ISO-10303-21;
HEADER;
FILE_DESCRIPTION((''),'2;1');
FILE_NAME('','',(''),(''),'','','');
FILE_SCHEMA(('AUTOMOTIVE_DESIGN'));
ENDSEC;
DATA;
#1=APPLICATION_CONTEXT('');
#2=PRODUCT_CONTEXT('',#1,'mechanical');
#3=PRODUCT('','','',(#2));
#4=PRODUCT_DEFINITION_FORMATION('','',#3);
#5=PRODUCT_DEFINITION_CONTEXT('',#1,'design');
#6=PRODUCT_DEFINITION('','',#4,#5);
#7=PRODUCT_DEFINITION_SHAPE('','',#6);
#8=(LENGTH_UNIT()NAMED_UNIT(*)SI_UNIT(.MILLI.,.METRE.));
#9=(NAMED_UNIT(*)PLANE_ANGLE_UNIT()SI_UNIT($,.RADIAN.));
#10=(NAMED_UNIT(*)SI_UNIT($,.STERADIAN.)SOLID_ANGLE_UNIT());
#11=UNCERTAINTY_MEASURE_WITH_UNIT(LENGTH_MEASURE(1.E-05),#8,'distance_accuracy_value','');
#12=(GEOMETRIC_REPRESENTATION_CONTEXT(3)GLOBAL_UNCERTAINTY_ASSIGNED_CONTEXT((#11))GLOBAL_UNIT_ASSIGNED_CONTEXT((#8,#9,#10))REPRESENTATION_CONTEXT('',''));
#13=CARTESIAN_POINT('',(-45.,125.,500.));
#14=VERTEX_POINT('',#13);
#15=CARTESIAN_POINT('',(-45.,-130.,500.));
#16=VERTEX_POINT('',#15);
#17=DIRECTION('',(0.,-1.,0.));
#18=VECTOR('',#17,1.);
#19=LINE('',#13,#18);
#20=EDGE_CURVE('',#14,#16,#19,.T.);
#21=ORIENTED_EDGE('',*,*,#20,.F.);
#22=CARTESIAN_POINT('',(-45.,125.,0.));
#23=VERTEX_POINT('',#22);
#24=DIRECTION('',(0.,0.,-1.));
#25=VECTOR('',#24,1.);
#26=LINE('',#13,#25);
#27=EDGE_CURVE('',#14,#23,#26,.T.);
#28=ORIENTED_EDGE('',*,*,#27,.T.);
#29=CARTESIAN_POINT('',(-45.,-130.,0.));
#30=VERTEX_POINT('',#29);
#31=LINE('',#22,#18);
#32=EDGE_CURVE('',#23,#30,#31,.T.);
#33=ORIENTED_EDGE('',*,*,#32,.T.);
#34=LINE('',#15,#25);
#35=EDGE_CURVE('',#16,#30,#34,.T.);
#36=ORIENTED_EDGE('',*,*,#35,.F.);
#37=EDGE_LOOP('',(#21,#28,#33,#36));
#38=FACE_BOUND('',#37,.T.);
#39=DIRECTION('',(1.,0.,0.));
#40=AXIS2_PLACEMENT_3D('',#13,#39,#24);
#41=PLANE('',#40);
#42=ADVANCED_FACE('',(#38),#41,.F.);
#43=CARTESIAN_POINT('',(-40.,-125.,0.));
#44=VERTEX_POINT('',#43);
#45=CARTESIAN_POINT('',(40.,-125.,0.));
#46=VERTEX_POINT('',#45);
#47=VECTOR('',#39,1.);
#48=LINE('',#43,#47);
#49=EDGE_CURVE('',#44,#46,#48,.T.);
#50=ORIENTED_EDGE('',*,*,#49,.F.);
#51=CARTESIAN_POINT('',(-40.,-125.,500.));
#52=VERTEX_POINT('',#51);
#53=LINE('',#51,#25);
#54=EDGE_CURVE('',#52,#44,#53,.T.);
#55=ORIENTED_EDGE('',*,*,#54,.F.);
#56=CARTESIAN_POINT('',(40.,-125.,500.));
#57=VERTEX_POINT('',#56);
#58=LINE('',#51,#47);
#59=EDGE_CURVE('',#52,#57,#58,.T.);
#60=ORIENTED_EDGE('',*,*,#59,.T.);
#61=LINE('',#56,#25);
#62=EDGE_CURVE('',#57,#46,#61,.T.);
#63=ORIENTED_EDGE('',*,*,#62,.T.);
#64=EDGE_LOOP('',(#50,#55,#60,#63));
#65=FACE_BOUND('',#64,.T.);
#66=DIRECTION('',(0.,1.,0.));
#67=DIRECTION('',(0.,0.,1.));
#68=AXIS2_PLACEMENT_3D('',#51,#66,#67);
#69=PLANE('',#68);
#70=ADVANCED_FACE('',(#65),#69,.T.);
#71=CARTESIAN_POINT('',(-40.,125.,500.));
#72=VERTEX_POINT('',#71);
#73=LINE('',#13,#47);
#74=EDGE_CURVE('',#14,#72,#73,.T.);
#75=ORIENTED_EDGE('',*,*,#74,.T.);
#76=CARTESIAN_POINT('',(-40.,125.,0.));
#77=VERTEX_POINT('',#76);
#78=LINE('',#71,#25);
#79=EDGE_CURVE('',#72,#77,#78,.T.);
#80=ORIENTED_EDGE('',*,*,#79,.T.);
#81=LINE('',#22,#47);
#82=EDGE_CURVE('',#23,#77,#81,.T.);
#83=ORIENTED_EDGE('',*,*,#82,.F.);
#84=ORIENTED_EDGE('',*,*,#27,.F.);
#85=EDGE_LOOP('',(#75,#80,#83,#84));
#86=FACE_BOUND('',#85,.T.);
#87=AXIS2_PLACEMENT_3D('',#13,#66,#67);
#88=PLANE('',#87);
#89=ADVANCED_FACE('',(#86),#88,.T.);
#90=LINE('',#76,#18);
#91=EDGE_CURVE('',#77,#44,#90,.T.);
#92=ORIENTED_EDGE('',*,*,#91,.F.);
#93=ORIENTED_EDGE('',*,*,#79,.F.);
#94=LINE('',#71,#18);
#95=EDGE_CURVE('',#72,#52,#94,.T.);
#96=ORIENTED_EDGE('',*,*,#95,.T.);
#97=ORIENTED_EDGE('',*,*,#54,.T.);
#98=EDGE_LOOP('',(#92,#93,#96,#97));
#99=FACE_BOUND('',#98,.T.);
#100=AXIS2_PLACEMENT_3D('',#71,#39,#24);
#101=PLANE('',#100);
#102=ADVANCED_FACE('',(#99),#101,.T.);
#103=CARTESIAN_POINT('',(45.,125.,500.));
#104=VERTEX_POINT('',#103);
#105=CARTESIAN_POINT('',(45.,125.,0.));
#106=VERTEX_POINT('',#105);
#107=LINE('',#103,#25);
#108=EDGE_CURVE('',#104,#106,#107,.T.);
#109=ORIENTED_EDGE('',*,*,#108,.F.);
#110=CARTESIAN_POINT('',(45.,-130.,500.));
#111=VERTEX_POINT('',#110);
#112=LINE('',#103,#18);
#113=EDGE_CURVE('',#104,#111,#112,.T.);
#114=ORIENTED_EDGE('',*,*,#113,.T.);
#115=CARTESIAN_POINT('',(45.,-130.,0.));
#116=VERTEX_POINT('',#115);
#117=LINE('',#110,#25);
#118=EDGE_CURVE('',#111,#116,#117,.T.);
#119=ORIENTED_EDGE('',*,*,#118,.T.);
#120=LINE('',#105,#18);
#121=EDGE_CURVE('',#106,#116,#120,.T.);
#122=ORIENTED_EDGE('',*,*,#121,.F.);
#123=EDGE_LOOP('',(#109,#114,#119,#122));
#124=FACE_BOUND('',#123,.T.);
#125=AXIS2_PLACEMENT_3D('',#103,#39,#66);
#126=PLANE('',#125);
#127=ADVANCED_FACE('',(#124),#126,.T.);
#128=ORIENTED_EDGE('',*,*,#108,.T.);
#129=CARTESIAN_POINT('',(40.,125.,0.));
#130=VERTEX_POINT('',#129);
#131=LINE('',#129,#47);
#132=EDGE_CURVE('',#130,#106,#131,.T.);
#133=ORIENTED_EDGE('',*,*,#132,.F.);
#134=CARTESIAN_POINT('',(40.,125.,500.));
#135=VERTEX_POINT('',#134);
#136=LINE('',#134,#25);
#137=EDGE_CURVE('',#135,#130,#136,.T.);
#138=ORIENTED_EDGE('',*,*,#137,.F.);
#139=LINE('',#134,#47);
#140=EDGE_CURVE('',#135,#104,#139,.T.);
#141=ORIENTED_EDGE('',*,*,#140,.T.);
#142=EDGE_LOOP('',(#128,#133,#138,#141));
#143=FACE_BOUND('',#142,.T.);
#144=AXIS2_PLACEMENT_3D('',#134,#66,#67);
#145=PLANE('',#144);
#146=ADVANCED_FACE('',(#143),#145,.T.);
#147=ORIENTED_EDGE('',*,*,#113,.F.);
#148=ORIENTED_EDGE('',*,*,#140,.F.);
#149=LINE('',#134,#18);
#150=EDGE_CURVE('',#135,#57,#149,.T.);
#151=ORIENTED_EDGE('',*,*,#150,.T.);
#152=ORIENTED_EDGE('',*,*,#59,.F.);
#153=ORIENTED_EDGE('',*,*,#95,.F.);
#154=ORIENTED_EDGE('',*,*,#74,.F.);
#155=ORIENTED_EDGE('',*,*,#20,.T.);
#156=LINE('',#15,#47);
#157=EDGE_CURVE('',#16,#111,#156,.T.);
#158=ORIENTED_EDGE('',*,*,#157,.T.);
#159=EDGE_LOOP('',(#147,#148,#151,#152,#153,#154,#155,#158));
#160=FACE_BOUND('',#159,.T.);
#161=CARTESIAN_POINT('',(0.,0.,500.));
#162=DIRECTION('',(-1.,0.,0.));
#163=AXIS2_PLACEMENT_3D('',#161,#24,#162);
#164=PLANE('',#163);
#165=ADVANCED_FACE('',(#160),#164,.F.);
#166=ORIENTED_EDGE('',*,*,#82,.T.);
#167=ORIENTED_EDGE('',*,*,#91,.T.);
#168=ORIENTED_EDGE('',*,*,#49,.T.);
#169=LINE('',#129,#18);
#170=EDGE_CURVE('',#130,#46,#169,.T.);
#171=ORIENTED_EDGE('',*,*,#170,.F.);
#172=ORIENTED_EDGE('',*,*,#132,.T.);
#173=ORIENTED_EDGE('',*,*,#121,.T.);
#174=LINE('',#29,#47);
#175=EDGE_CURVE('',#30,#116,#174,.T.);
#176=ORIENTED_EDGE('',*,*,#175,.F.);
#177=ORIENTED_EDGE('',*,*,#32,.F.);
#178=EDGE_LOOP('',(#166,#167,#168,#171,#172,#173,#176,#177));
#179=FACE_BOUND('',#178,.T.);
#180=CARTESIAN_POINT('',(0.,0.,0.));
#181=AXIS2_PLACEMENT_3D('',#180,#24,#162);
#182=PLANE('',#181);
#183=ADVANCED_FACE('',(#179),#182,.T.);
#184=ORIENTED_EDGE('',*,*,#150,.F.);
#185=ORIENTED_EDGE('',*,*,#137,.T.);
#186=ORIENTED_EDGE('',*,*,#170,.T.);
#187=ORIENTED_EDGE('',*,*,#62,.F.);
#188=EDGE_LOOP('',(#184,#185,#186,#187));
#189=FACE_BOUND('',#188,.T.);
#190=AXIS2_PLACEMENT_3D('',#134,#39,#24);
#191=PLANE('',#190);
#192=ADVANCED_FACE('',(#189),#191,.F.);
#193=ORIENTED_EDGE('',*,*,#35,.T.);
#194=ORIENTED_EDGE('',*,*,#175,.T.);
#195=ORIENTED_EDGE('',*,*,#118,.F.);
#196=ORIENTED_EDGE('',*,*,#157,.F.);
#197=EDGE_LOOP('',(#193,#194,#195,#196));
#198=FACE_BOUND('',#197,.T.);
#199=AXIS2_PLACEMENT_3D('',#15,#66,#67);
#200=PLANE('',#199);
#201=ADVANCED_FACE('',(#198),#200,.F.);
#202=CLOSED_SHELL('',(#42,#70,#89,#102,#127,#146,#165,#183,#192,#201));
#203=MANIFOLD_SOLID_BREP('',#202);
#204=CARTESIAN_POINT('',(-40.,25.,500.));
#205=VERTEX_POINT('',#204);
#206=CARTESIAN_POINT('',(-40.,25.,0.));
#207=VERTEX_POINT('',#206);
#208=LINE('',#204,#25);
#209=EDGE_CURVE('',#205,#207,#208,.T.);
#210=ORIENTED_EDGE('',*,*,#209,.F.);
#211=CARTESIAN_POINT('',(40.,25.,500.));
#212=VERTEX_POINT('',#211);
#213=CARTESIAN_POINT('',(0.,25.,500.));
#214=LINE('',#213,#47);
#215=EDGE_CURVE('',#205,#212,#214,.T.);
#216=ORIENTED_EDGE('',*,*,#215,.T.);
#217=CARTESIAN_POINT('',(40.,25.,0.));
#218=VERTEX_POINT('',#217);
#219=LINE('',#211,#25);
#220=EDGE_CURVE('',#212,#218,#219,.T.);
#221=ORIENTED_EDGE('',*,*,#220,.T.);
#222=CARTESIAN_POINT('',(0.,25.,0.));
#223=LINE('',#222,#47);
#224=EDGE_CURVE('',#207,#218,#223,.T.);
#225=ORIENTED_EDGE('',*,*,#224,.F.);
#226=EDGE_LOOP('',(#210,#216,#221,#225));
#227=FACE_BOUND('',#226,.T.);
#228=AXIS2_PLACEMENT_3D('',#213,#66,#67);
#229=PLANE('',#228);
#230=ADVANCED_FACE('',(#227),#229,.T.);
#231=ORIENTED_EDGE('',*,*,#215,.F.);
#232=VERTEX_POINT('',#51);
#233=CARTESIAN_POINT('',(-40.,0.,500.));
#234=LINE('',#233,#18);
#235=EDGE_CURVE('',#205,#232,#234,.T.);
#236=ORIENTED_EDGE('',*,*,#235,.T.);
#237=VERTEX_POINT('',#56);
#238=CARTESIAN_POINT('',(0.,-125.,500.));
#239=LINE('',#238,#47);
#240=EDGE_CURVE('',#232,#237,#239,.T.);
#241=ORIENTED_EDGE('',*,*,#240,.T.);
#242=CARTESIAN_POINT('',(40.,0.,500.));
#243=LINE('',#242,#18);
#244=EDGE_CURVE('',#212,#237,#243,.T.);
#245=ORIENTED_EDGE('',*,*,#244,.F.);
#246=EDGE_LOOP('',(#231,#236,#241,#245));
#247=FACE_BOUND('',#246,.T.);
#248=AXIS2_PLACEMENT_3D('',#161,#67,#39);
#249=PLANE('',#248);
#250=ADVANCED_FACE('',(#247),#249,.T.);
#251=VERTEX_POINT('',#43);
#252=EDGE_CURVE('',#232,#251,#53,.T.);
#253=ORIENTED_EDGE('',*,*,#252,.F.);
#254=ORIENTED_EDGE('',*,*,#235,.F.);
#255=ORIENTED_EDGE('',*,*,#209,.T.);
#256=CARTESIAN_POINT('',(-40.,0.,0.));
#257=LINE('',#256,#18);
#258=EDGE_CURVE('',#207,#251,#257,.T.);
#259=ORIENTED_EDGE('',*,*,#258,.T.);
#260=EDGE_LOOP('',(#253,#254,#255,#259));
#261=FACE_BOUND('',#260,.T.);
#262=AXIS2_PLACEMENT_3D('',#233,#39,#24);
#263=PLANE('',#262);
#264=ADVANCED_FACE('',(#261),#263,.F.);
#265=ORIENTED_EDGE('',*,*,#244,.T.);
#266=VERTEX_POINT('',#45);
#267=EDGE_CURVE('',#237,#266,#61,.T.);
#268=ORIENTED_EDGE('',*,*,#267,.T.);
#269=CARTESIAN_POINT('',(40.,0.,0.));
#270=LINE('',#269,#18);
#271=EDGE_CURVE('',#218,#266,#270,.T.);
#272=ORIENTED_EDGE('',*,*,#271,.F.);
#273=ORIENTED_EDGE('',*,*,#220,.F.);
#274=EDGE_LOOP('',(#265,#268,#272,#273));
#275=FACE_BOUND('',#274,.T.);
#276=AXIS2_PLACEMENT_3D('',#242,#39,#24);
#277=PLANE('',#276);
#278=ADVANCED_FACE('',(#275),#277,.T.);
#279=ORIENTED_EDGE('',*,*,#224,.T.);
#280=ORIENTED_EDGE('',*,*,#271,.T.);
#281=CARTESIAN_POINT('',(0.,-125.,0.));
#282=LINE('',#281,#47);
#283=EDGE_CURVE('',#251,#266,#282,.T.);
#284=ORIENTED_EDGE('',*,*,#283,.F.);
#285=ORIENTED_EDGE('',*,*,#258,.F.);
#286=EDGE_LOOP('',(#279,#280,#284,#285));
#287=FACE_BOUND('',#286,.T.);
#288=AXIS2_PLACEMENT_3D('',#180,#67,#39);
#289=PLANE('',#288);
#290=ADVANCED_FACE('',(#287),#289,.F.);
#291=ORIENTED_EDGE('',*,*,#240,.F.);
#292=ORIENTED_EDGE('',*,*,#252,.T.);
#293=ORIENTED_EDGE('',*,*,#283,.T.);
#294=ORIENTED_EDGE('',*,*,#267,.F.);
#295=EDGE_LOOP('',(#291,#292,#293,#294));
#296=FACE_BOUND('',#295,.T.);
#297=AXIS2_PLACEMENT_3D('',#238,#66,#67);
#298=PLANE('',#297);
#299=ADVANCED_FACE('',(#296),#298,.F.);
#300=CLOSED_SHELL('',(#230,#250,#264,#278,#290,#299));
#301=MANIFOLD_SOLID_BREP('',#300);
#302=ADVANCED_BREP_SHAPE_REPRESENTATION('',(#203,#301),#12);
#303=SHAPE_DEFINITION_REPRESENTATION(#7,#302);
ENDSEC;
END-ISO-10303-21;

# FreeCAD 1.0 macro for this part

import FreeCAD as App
import Part
import Sketcher

V = App.Vector
Q = App.Units.Quantity


def add_polygon(sketch, points):
    """Adds a closed chain of lines whose ends are joined by coincident constraints."""
    first, n = sketch.GeometryCount, len(points)
    for a, b in zip(points, points[1:] + points[:1]):
        sketch.addGeometry(Part.LineSegment(App.Vector(*a, 0), App.Vector(*b, 0)), False)
    for i in range(n):
        sketch.addConstraint(Sketcher.Constraint("Coincident", first + i, 2, first + (i + 1) % n, 1))

doc = App.newDocument("Part")
body = doc.addObject("PartDesign::Body", "Body")

# Sketch on XY plane
sketch1 = doc.addObject("Sketcher::SketchObject", "Sketch")
body.addObject(sketch1)
sketch1.AttachmentSupport = (doc.XY_Plane, [""])
sketch1.MapMode = "FlatFace"
add_polygon(sketch1, [(45, -130), (45, 125), (40, 125), (40, -125), (-40, -125), (-40, 125), (-45, 125), (-45, -130)])  # lines 0-7
sketch1.addConstraint(Sketcher.Constraint("Vertical", 0))
sketch1.addConstraint(Sketcher.Constraint("Horizontal", 1))
sketch1.addConstraint(Sketcher.Constraint("Vertical", 2))
sketch1.addConstraint(Sketcher.Constraint("Horizontal", 3))
sketch1.addConstraint(Sketcher.Constraint("Vertical", 4))
sketch1.addConstraint(Sketcher.Constraint("Horizontal", 5))
sketch1.addConstraint(Sketcher.Constraint("Vertical", 6))
sketch1.addConstraint(Sketcher.Constraint("Horizontal", 7))
sketch1.addConstraint(Sketcher.Constraint("Symmetric", 1, 2, 3, 2, -1, 1))
sketch1.addConstraint(Sketcher.Constraint("Symmetric", 0, 2, 5, 2, -2))
sketch1.addConstraint(Sketcher.Constraint("DistanceX", 1, 2, 1, 1, Q("5 mm")))
sketch1.addConstraint(Sketcher.Constraint("DistanceX", 3, 2, 3, 1, Q("80 mm")))
sketch1.addConstraint(Sketcher.Constraint("DistanceY", 0, 1, 0, 2, Q("255 mm")))
sketch1.addConstraint(Sketcher.Constraint("DistanceY", 2, 2, 2, 1, Q("250 mm")))
pad1 = doc.addObject("PartDesign::Pad", "Pad")
body.addObject(pad1)
pad1.Profile = sketch1
pad1.Length = 500
body2 = doc.addObject("PartDesign::Body", "Body001")

# Sketch on XY plane
sketch2 = doc.addObject("Sketcher::SketchObject", "Sketch001")
body2.addObject(sketch2)
sketch2.AttachmentSupport = (doc.getObject("XY_Plane001"), [""])
sketch2.MapMode = "FlatFace"
add_polygon(sketch2, [(-40, 25), (-40, -125), (40, -125), (40, 25)])  # lines 0-3
sketch2.addConstraint(Sketcher.Constraint("Vertical", 0))
sketch2.addConstraint(Sketcher.Constraint("Horizontal", 1))
sketch2.addConstraint(Sketcher.Constraint("Vertical", 2))
sketch2.addConstraint(Sketcher.Constraint("Horizontal", 3))
sketch2.addConstraint(Sketcher.Constraint("DistanceX", 1, 1, 1, 2, Q("80 mm")))
sketch2.addConstraint(Sketcher.Constraint("DistanceY", 0, 2, 0, 1, Q("150 mm")))
sketch2.addConstraint(Sketcher.Constraint("DistanceX", 0, 2, -1, 1, Q("40 mm")))
sketch2.addConstraint(Sketcher.Constraint("DistanceY", 0, 2, -1, 1, Q("125 mm")))
pad2 = doc.addObject("PartDesign::Pad", "Pad001")
body2.addObject(pad2)
pad2.Profile = sketch2
pad2.Length = 500

doc.recompute()
